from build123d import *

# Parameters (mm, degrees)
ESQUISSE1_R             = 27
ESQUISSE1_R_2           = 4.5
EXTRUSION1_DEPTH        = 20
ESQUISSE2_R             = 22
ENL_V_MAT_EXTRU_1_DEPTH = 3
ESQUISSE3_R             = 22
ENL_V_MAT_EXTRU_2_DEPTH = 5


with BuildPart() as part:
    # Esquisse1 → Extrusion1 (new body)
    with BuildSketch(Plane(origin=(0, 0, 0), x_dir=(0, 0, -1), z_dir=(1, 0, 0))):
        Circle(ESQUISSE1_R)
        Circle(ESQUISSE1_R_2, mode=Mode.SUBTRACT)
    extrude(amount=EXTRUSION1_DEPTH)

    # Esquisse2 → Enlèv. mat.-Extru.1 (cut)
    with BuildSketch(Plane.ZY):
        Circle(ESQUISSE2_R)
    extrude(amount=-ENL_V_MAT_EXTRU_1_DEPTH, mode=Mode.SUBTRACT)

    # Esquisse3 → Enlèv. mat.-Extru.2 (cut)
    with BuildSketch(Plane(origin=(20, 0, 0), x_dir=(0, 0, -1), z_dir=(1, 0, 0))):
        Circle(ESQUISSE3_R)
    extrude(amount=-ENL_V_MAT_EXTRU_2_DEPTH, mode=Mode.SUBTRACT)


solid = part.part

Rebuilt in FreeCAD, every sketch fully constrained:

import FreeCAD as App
import Part
import Sketcher

V = App.Vector

doc = App.newDocument("Part")
params = doc.addObject("Spreadsheet::Sheet", "Params")
for row, (alias, value) in enumerate([
    ("sketch1_diameter", "54 mm"),
    ("sketch1_diameter2", "9 mm"),
    ("pad1_length", "20 mm"),
    ("sketch2_diameter", "44 mm"),
    ("pocket1_length", "3 mm"),
    ("sketch3_diameter", "44 mm"),
    ("pocket2_length", "5 mm"),
], start=1):
    params.set(f"A{row}", alias)
    params.set(f"B{row}", "=" + value)
    params.setAlias(f"B{row}", alias)

body = doc.addObject("PartDesign::Body", "Body")

# Sketch on YZ plane
sketch1 = body.newObject("Sketcher::SketchObject", "Sketch")
sketch1.AttachmentSupport = (doc.getObject("YZ_Plane"), [""])
sketch1.MapMode = "FlatFace"
sketch1.addGeometry([
    Part.Circle(V(0, 0, 0), V(0, 0, 1), 27),
    Part.Circle(V(0, 0, 0), V(0, 0, 1), 4.5),
], False)
sketch1.addConstraint([
    Sketcher.Constraint("Coincident", 0, 3, -1, 1),
    Sketcher.Constraint("Coincident", 1, 3, -1, 1),
    Sketcher.Constraint("Diameter", 0, 54.0),
    Sketcher.Constraint("Diameter", 1, 9.0),
])
sketch1.setExpression("Constraints[2]", "Params.sketch1_diameter")
sketch1.setExpression("Constraints[3]", "Params.sketch1_diameter2")
pad1 = body.newObject("PartDesign::Pad", "Pad")
pad1.Profile = sketch1
pad1.setExpression("Length", "Params.pad1_length")

# Sketch on YZ plane
sketch2 = body.newObject("Sketcher::SketchObject", "Sketch001")
sketch2.AttachmentSupport = (doc.getObject("YZ_Plane"), [""])
sketch2.MapMode = "FlatFace"
sketch2.addGeometry(Part.Circle(V(0, 0, 0), V(0, 0, 1), 22), False)
sketch2.addConstraint([
    Sketcher.Constraint("Coincident", 0, 3, -1, 1),
    Sketcher.Constraint("Diameter", 0, 44.0),
])
sketch2.setExpression("Constraints[1]", "Params.sketch2_diameter")
pocket1 = body.newObject("PartDesign::Pocket", "Pocket")
pocket1.Profile = sketch2
pocket1.setExpression("Length", "Params.pocket1_length")
pocket1.Reversed = True

# Sketch on YZ plane
sketch3 = body.newObject("Sketcher::SketchObject", "Sketch002")
sketch3.AttachmentSupport = (doc.getObject("YZ_Plane"), [""])
sketch3.MapMode = "FlatFace"
sketch3.AttachmentOffset = App.Placement(V(0, 0, 20), App.Rotation())
sketch3.addGeometry(Part.Circle(V(0, 0, 0), V(0, 0, 1), 22), False)
sketch3.addConstraint([
    Sketcher.Constraint("Coincident", 0, 3, -1, 1),
    Sketcher.Constraint("Diameter", 0, 44.0),
])
sketch3.setExpression("Constraints[1]", "Params.sketch3_diameter")
pocket2 = body.newObject("PartDesign::Pocket", "Pocket001")
pocket2.Profile = sketch3
pocket2.setExpression("Length", "Params.pocket2_length")

doc.recompute()
